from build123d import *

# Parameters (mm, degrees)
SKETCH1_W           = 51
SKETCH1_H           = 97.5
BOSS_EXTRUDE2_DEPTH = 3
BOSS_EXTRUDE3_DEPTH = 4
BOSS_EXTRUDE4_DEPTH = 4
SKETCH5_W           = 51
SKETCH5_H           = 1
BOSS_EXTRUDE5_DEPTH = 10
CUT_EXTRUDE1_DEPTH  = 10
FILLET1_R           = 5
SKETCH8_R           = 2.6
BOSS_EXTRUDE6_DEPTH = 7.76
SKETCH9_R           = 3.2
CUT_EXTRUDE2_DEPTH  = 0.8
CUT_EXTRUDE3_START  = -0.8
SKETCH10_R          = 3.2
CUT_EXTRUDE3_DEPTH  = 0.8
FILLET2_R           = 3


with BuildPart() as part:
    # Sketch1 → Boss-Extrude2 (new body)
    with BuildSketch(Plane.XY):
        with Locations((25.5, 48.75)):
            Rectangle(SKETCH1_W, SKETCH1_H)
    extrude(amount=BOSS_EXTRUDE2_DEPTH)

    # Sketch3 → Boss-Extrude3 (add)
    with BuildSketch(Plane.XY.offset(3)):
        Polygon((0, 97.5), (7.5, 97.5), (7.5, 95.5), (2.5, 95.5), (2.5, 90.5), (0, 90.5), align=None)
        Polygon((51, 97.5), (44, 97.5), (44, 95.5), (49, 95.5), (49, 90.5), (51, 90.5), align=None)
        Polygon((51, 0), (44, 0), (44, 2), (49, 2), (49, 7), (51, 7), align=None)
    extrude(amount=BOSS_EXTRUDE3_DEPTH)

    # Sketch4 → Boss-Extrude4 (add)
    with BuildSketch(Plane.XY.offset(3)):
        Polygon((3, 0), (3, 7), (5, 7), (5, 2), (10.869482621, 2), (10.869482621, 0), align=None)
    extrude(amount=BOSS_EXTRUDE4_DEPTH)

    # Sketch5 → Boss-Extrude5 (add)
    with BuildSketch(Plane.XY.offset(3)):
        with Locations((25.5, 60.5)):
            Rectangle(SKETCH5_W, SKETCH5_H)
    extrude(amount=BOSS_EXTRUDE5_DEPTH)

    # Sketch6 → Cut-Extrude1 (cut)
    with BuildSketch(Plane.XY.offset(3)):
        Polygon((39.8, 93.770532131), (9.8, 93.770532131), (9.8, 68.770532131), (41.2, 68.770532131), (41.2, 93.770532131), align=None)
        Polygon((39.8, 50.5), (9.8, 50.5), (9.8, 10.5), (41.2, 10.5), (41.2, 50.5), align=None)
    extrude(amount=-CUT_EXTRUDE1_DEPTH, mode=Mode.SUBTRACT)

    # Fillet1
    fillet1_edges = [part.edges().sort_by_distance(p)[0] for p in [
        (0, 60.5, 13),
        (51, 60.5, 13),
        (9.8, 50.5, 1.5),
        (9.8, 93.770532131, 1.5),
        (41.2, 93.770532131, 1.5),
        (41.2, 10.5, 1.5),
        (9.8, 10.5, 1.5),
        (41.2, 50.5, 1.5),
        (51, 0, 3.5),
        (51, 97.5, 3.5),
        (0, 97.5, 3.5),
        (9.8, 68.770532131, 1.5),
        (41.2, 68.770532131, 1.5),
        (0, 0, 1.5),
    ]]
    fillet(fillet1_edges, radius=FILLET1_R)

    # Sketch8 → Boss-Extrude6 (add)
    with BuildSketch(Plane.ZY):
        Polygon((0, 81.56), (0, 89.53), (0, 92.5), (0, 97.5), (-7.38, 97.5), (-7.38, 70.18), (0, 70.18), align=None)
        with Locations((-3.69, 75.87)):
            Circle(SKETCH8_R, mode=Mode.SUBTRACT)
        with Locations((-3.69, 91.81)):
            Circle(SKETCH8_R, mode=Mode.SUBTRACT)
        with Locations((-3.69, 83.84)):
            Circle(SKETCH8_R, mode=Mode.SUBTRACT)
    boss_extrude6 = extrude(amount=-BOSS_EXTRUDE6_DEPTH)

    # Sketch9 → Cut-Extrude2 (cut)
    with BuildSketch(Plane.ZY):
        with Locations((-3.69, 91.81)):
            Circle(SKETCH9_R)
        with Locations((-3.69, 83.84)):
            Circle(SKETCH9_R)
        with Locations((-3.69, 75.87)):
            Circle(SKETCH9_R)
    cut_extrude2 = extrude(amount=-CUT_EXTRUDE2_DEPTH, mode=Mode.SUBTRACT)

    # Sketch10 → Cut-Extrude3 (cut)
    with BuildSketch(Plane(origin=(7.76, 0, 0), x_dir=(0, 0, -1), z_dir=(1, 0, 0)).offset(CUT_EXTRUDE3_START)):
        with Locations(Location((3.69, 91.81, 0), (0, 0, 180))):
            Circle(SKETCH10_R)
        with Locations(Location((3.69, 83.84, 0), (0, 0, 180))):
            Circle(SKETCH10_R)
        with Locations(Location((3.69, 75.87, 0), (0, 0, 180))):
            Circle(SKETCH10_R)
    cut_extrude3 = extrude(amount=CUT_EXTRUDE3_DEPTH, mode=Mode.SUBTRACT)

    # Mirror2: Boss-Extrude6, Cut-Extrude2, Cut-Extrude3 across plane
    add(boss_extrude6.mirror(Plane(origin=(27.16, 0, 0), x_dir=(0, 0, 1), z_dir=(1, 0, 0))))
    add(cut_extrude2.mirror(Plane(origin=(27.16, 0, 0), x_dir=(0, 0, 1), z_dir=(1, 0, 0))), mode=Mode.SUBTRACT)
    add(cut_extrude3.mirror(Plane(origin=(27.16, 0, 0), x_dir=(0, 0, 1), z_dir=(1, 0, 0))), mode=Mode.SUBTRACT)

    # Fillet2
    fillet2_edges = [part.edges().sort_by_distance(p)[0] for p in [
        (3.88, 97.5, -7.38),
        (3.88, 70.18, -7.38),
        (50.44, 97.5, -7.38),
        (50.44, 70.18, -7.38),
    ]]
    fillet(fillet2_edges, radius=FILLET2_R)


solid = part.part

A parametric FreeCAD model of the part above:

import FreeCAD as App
import Part
import Sketcher

V = App.Vector
Q = App.Units.Quantity


def edges_at(feature, points):
    """Names of the edges that pass closest to the given points."""
    edges = feature.Shape.Edges
    near = lambda p: min(range(len(edges)), key=lambda i: edges[i].distToShape(Part.Vertex(*p))[0])
    return sorted({f"Edge{near(p) + 1}" for p in points})

doc = App.newDocument("Part")
body = doc.addObject("PartDesign::Body", "Body")

# Sketch on XY plane
sketch1 = doc.addObject("Sketcher::SketchObject", "Sketch")
body.addObject(sketch1)
sketch1.AttachmentSupport = (doc.XY_Plane, [""])
sketch1.MapMode = "FlatFace"
sketch1.addGeometry([
    Part.LineSegment(V(0, 97.5, 0), V(0, 0, 0)),
    Part.LineSegment(V(0, 0, 0), V(51, 0, 0)),
    Part.LineSegment(V(51, 0, 0), V(51, 97.5, 0)),
    Part.LineSegment(V(51, 97.5, 0), V(0, 97.5, 0)),
], False)
sketch1.addConstraint([
    Sketcher.Constraint("Coincident", 0, 2, 1, 1),
    Sketcher.Constraint("Coincident", 1, 2, 2, 1),
    Sketcher.Constraint("Coincident", 2, 2, 3, 1),
    Sketcher.Constraint("Coincident", 3, 2, 0, 1),
    Sketcher.Constraint("Vertical", 0),
    Sketcher.Constraint("Horizontal", 1),
    Sketcher.Constraint("Vertical", 2),
    Sketcher.Constraint("Horizontal", 3),
    Sketcher.Constraint("Coincident", 0, 2, -1, 1),
    Sketcher.Constraint("DistanceX", 1, 1, 1, 2, Q("51 mm")),
    Sketcher.Constraint("DistanceY", 0, 2, 0, 1, Q("97.5 mm")),
])
pad1 = doc.addObject("PartDesign::Pad", "Pad")
body.addObject(pad1)
pad1.Profile = sketch1
pad1.Length = 3

# Sketch on XY plane
sketch2 = doc.addObject("Sketcher::SketchObject", "Sketch001")
body.addObject(sketch2)
sketch2.AttachmentSupport = (doc.XY_Plane, [""])
sketch2.MapMode = "FlatFace"
sketch2.AttachmentOffset = App.Placement(V(0, 0, 3), App.Rotation())
sketch2.addGeometry([
    Part.LineSegment(V(7.5, 97.5, 0), V(0, 97.5, 0)),  # 0
    Part.LineSegment(V(0, 97.5, 0), V(0, 90.5, 0)),  # 1
    Part.LineSegment(V(0, 90.5, 0), V(2.5, 90.5, 0)),  # 2
    Part.LineSegment(V(2.5, 90.5, 0), V(2.5, 95.5, 0)),  # 3
    Part.LineSegment(V(2.5, 95.5, 0), V(7.5, 95.5, 0)),  # 4
    Part.LineSegment(V(7.5, 95.5, 0), V(7.5, 97.5, 0)),  # 5
    Part.LineSegment(V(51, 97.5, 0), V(44, 97.5, 0)),  # 6
    Part.LineSegment(V(44, 97.5, 0), V(44, 95.5, 0)),  # 7
    Part.LineSegment(V(44, 95.5, 0), V(49, 95.5, 0)),  # 8
    Part.LineSegment(V(49, 95.5, 0), V(49, 90.5, 0)),  # 9
    Part.LineSegment(V(49, 90.5, 0), V(51, 90.5, 0)),  # 10
    Part.LineSegment(V(51, 90.5, 0), V(51, 97.5, 0)),  # 11
    Part.LineSegment(V(44, 0, 0), V(51, 0, 0)),  # 12
    Part.LineSegment(V(51, 0, 0), V(51, 7, 0)),  # 13
    Part.LineSegment(V(51, 7, 0), V(49, 7, 0)),  # 14
    Part.LineSegment(V(49, 7, 0), V(49, 2, 0)),  # 15
    Part.LineSegment(V(49, 2, 0), V(44, 2, 0)),  # 16
    Part.LineSegment(V(44, 2, 0), V(44, 0, 0)),  # 17
], False)
sketch2.addConstraint([
    Sketcher.Constraint("Coincident", 0, 2, 1, 1),
    Sketcher.Constraint("Coincident", 1, 2, 2, 1),
    Sketcher.Constraint("Coincident", 2, 2, 3, 1),
    Sketcher.Constraint("Coincident", 3, 2, 4, 1),
    Sketcher.Constraint("Coincident", 4, 2, 5, 1),
    Sketcher.Constraint("Coincident", 5, 2, 0, 1),
    Sketcher.Constraint("Coincident", 6, 2, 7, 1),
    Sketcher.Constraint("Coincident", 7, 2, 8, 1),
    Sketcher.Constraint("Coincident", 8, 2, 9, 1),
    Sketcher.Constraint("Coincident", 9, 2, 10, 1),
    Sketcher.Constraint("Coincident", 10, 2, 11, 1),
    Sketcher.Constraint("Coincident", 11, 2, 6, 1),
    Sketcher.Constraint("Coincident", 12, 2, 13, 1),
    Sketcher.Constraint("Coincident", 13, 2, 14, 1),
    Sketcher.Constraint("Coincident", 14, 2, 15, 1),
    Sketcher.Constraint("Coincident", 15, 2, 16, 1),
    Sketcher.Constraint("Coincident", 16, 2, 17, 1),
    Sketcher.Constraint("Coincident", 17, 2, 12, 1),
    Sketcher.Constraint("Horizontal", 0),
    Sketcher.Constraint("Vertical", 1),
    Sketcher.Constraint("Horizontal", 2),
    Sketcher.Constraint("Vertical", 3),
    Sketcher.Constraint("Horizontal", 4),
    Sketcher.Constraint("Vertical", 5),
    Sketcher.Constraint("Horizontal", 6),
    Sketcher.Constraint("Vertical", 7),
    Sketcher.Constraint("Horizontal", 8),
    Sketcher.Constraint("Vertical", 9),
    Sketcher.Constraint("Horizontal", 10),
    Sketcher.Constraint("Vertical", 11),
    Sketcher.Constraint("Horizontal", 12),
    Sketcher.Constraint("Vertical", 13),
    Sketcher.Constraint("Horizontal", 14),
    Sketcher.Constraint("Vertical", 15),
    Sketcher.Constraint("Horizontal", 16),
    Sketcher.Constraint("Vertical", 17),
    Sketcher.Constraint("PointOnObject", 0, 2, -2),
    Sketcher.Constraint("PointOnObject", 12, 2, -1),
    Sketcher.Constraint("Horizontal", 5, 2, 6, 2),
    Sketcher.Constraint("Horizontal", 4, 2, 7, 2),
    Sketcher.Constraint("Horizontal", 2, 2, 9, 2),
    Sketcher.Constraint("Vertical", 11, 2, 12, 2),
    Sketcher.Constraint("Vertical", 9, 2, 14, 2),
    Sketcher.Constraint("Vertical", 7, 2, 16, 2),
    Sketcher.Constraint("Equal", 4, 8),
    Sketcher.Constraint("Equal", 12, 1),
    Sketcher.Constraint("Equal", 16, 3),
    Sketcher.Constraint("Equal", 11, 13),
    Sketcher.Constraint("Equal", 9, 15),
    Sketcher.Constraint("DistanceX", 4, 1, 4, 2, Q("5 mm")),
    Sketcher.Constraint("DistanceX", 6, 2, 6, 1, Q("7 mm")),
    Sketcher.Constraint("DistanceX", 0, 2, 0, 1, Q("7.5 mm")),
    Sketcher.Constraint("DistanceX", -1, 1, 6, 2, Q("44 mm")),
    Sketcher.Constraint("DistanceY", -1, 1, 0, 2, Q("97.5 mm")),
])
pad2 = doc.addObject("PartDesign::Pad", "Pad001")
body.addObject(pad2)
pad2.Profile = sketch2
pad2.Length = 4

# Sketch on XY plane
sketch3 = doc.addObject("Sketcher::SketchObject", "Sketch002")
body.addObject(sketch3)
sketch3.AttachmentSupport = (doc.XY_Plane, [""])
sketch3.MapMode = "FlatFace"
sketch3.AttachmentOffset = App.Placement(V(0, 0, 3), App.Rotation())
sketch3.addGeometry([
    Part.LineSegment(V(3, 7, 0), V(3, 0, 0)),  # 0
    Part.LineSegment(V(3, 0, 0), V(10.869483, 0, 0)),  # 1
    Part.LineSegment(V(10.869483, 0, 0), V(10.869483, 2, 0)),  # 2
    Part.LineSegment(V(10.869483, 2, 0), V(5, 2, 0)),  # 3
    Part.LineSegment(V(5, 2, 0), V(5, 7, 0)),  # 4
    Part.LineSegment(V(5, 7, 0), V(3, 7, 0)),  # 5
], False)
sketch3.addConstraint([
    Sketcher.Constraint("Coincident", 0, 2, 1, 1),
    Sketcher.Constraint("Coincident", 1, 2, 2, 1),
    Sketcher.Constraint("Coincident", 2, 2, 3, 1),
    Sketcher.Constraint("Coincident", 3, 2, 4, 1),
    Sketcher.Constraint("Coincident", 4, 2, 5, 1),
    Sketcher.Constraint("Coincident", 5, 2, 0, 1),
    Sketcher.Constraint("Vertical", 0),
    Sketcher.Constraint("Horizontal", 1),
    Sketcher.Constraint("Vertical", 2),
    Sketcher.Constraint("Horizontal", 3),
    Sketcher.Constraint("Vertical", 4),
    Sketcher.Constraint("Horizontal", 5),
    Sketcher.Constraint("PointOnObject", 0, 2, -1),
    Sketcher.Constraint("Equal", 5, 2),
    Sketcher.Constraint("DistanceX", 5, 2, 5, 1, Q("2 mm")),
    Sketcher.Constraint("DistanceY", 0, 2, 0, 1, Q("7 mm")),
    Sketcher.Constraint("DistanceX", -1, 1, 0, 2, Q("3 mm")),
    Sketcher.Constraint("DistanceX", 1, 1, 1, 2, Q("7.869483 mm")),
])
pad3 = doc.addObject("PartDesign::Pad", "Pad002")
body.addObject(pad3)
pad3.Profile = sketch3
pad3.Length = 4

# Sketch on XY plane
sketch4 = doc.addObject("Sketcher::SketchObject", "Sketch003")
body.addObject(sketch4)
sketch4.AttachmentSupport = (doc.XY_Plane, [""])
sketch4.MapMode = "FlatFace"
sketch4.AttachmentOffset = App.Placement(V(0, 0, 3), App.Rotation())
sketch4.addGeometry([
    Part.LineSegment(V(0, 61, 0), V(0, 60, 0)),
    Part.LineSegment(V(0, 60, 0), V(51, 60, 0)),
    Part.LineSegment(V(51, 60, 0), V(51, 61, 0)),
    Part.LineSegment(V(51, 61, 0), V(0, 61, 0)),
], False)
sketch4.addConstraint([
    Sketcher.Constraint("Coincident", 0, 2, 1, 1),
    Sketcher.Constraint("Coincident", 1, 2, 2, 1),
    Sketcher.Constraint("Coincident", 2, 2, 3, 1),
    Sketcher.Constraint("Coincident", 3, 2, 0, 1),
    Sketcher.Constraint("Vertical", 0),
    Sketcher.Constraint("Horizontal", 1),
    Sketcher.Constraint("Vertical", 2),
    Sketcher.Constraint("Horizontal", 3),
    Sketcher.Constraint("PointOnObject", 0, 2, -2),
    Sketcher.Constraint("DistanceX", 1, 1, 1, 2, Q("51 mm")),
    Sketcher.Constraint("DistanceY", 0, 2, 0, 1, Q("1 mm")),
    Sketcher.Constraint("DistanceY", -1, 1, 0, 2, Q("60 mm")),
])
pad4 = doc.addObject("PartDesign::Pad", "Pad003")
body.addObject(pad4)
pad4.Profile = sketch4
pad4.Length = 10

# Sketch on XY plane
sketch5 = doc.addObject("Sketcher::SketchObject", "Sketch004")
body.addObject(sketch5)
sketch5.AttachmentSupport = (doc.XY_Plane, [""])
sketch5.MapMode = "FlatFace"
sketch5.AttachmentOffset = App.Placement(V(0, 0, 3), App.Rotation())
sketch5.addGeometry([
    Part.LineSegment(V(9.8, 93.770532, 0), V(9.8, 68.770532, 0)),  # 0
    Part.LineSegment(V(9.8, 68.770532, 0), V(41.2, 68.770532, 0)),  # 1
    Part.LineSegment(V(41.2, 68.770532, 0), V(41.2, 93.770532, 0)),  # 2
    Part.LineSegment(V(41.2, 93.770532, 0), V(9.8, 93.770532, 0)),  # 3
    Part.LineSegment(V(9.8, 50.5, 0), V(9.8, 10.5, 0)),  # 4
    Part.LineSegment(V(9.8, 10.5, 0), V(41.2, 10.5, 0)),  # 5
    Part.LineSegment(V(41.2, 10.5, 0), V(41.2, 50.5, 0)),  # 6
    Part.LineSegment(V(41.2, 50.5, 0), V(9.8, 50.5, 0)),  # 7
], False)
sketch5.addConstraint([
    Sketcher.Constraint("Coincident", 0, 2, 1, 1),
    Sketcher.Constraint("Coincident", 1, 2, 2, 1),
    Sketcher.Constraint("Coincident", 2, 2, 3, 1),
    Sketcher.Constraint("Coincident", 3, 2, 0, 1),
    Sketcher.Constraint("Coincident", 4, 2, 5, 1),
    Sketcher.Constraint("Coincident", 5, 2, 6, 1),
    Sketcher.Constraint("Coincident", 6, 2, 7, 1),
    Sketcher.Constraint("Coincident", 7, 2, 4, 1),
    Sketcher.Constraint("Vertical", 0),
    Sketcher.Constraint("Horizontal", 1),
    Sketcher.Constraint("Vertical", 2),
    Sketcher.Constraint("Horizontal", 3),
    Sketcher.Constraint("Vertical", 4),
    Sketcher.Constraint("Horizontal", 5),
    Sketcher.Constraint("Vertical", 6),
    Sketcher.Constraint("Horizontal", 7),
    Sketcher.Constraint("Vertical", 3, 2, 4, 2),
    Sketcher.Constraint("Vertical", 2, 2, 5, 2),
    Sketcher.Constraint("DistanceY", 0, 2, 0, 1, Q("25 mm")),
    Sketcher.Constraint("DistanceY", 4, 2, 4, 1, Q("40 mm")),
    Sketcher.Constraint("DistanceX", 1, 1, 1, 2, Q("31.4 mm")),
    Sketcher.Constraint("DistanceX", -1, 1, 0, 2, Q("9.8 mm")),
    Sketcher.Constraint("DistanceY", -1, 1, 4, 2, Q("10.5 mm")),
    Sketcher.Constraint("DistanceY", -1, 1, 0, 2, Q("68.770532 mm")),
])
pocket1 = doc.addObject("PartDesign::Pocket", "Pocket")
body.addObject(pocket1)
pocket1.Profile = sketch5
pocket1.Length = 10
doc.recompute()

fillet = doc.addObject("PartDesign::Fillet", "Fillet")
body.addObject(fillet)
fillet.Base = (pocket1, edges_at(pocket1, [
    (0, 60.5, 13),
    (51, 60.5, 13),
    (9.8, 50.5, 1.5),
    (9.8, 93.771, 1.5),
    (41.2, 93.771, 1.5),
    (41.2, 10.5, 1.5),
    (9.8, 10.5, 1.5),
    (41.2, 50.5, 1.5),
    (51, 0, 3.5),
    (51, 97.5, 3.5),
    (0, 97.5, 3.5),
    (9.8, 68.771, 1.5),
    (41.2, 68.771, 1.5),
    (0, 0, 1.5),
]))
fillet.Radius = 5

# Sketch on YZ plane
sketch6 = doc.addObject("Sketcher::SketchObject", "Sketch005")
body.addObject(sketch6)
sketch6.AttachmentSupport = (doc.YZ_Plane, [""])
sketch6.MapMode = "FlatFace"
sketch6.addGeometry([
    Part.LineSegment(V(97.5, 0, 0), V(97.5, -7.38, 0)),  # 0
    Part.LineSegment(V(97.5, -7.38, 0), V(70.18, -7.38, 0)),  # 1
    Part.LineSegment(V(70.18, -7.38, 0), V(70.18, 0, 0)),  # 2
    Part.LineSegment(V(70.18, 0, 0), V(97.5, 0, 0)),  # 3
    Part.Circle(V(75.87, -3.69, 0), V(0, 0, 1), 2.6),  # 4
    Part.Circle(V(83.84, -3.69, 0), V(0, 0, 1), 2.6),  # 5
    Part.Circle(V(91.81, -3.69, 0), V(0, 0, 1), 2.6),  # 6
], False)
sketch6.addConstraint([
    Sketcher.Constraint("Coincident", 0, 2, 1, 1),
    Sketcher.Constraint("Coincident", 1, 2, 2, 1),
    Sketcher.Constraint("Coincident", 2, 2, 3, 1),
    Sketcher.Constraint("Coincident", 3, 2, 0, 1),
    Sketcher.Constraint("Vertical", 0),
    Sketcher.Constraint("Horizontal", 1),
    Sketcher.Constraint("Vertical", 2),
    Sketcher.Constraint("Horizontal", 3),
    Sketcher.Constraint("Equal", 4, 5),
    Sketcher.Constraint("Equal", 5, 6),
    Sketcher.Constraint("PointOnObject", 2, 2, -1),
    Sketcher.Constraint("Horizontal", 4, 3, 5, 3),
    Sketcher.Constraint("Horizontal", 5, 3, 6, 3),
    Sketcher.Constraint("Diameter", 4, Q("5.2 mm")),
    Sketcher.Constraint("DistanceX", 1, 2, 1, 1, Q("27.32 mm")),
    Sketcher.Constraint("DistanceY", 0, 2, 0, 1, Q("7.38 mm")),
    Sketcher.Constraint("DistanceX", -1, 1, 0, 2, Q("97.5 mm")),
    Sketcher.Constraint("DistanceX", -1, 1, 4, 3, Q("75.87 mm")),
    Sketcher.Constraint("DistanceY", 4, 3, -1, 1, Q("3.69 mm")),
    Sketcher.Constraint("DistanceX", -1, 1, 5, 3, Q("83.84 mm")),
    Sketcher.Constraint("DistanceX", -1, 1, 6, 3, Q("91.81 mm")),
])
pad5 = doc.addObject("PartDesign::Pad", "Pad004")
body.addObject(pad5)
pad5.Profile = sketch6
pad5.Length = 7.76

# Sketch on YZ plane
sketch7 = doc.addObject("Sketcher::SketchObject", "Sketch006")
body.addObject(sketch7)
sketch7.AttachmentSupport = (doc.YZ_Plane, [""])
sketch7.MapMode = "FlatFace"
sketch7.addGeometry([
    Part.Circle(V(91.81, -3.69, 0), V(0, 0, 1), 3.2),
    Part.Circle(V(83.84, -3.69, 0), V(0, 0, 1), 3.2),
    Part.Circle(V(75.87, -3.69, 0), V(0, 0, 1), 3.2),
], False)
sketch7.addConstraint([
    Sketcher.Constraint("Equal", 0, 1),
    Sketcher.Constraint("Equal", 1, 2),
    Sketcher.Constraint("Horizontal", 0, 3, 1, 3),
    Sketcher.Constraint("Horizontal", 1, 3, 2, 3),
    Sketcher.Constraint("Diameter", 0, Q("6.4 mm")),
    Sketcher.Constraint("DistanceX", -1, 1, 0, 3, Q("91.81 mm")),
    Sketcher.Constraint("DistanceY", 0, 3, -1, 1, Q("3.69 mm")),
    Sketcher.Constraint("DistanceX", -1, 1, 1, 3, Q("83.84 mm")),
    Sketcher.Constraint("DistanceX", -1, 1, 2, 3, Q("75.87 mm")),
])
pocket2 = doc.addObject("PartDesign::Pocket", "Pocket001")
body.addObject(pocket2)
pocket2.Profile = sketch7
pocket2.Length = 0.8
pocket2.Reversed = True

# Sketch on YZ plane
sketch8 = doc.addObject("Sketcher::SketchObject", "Sketch007")
body.addObject(sketch8)
sketch8.AttachmentSupport = (doc.YZ_Plane, [""])
sketch8.MapMode = "FlatFace"
sketch8.AttachmentOffset = App.Placement(V(0, 0, 6.96), App.Rotation())
sketch8.addGeometry([
    Part.Circle(V(91.81, -3.69, 0), V(0, 0, 1), 3.2),
    Part.Circle(V(83.84, -3.69, 0), V(0, 0, 1), 3.2),
    Part.Circle(V(75.87, -3.69, 0), V(0, 0, 1), 3.2),
], False)
sketch8.addConstraint([
    Sketcher.Constraint("Equal", 0, 1),
    Sketcher.Constraint("Equal", 1, 2),
    Sketcher.Constraint("Horizontal", 0, 3, 1, 3),
    Sketcher.Constraint("Horizontal", 1, 3, 2, 3),
    Sketcher.Constraint("Diameter", 0, Q("6.4 mm")),
    Sketcher.Constraint("DistanceX", -1, 1, 0, 3, Q("91.81 mm")),
    Sketcher.Constraint("DistanceY", 0, 3, -1, 1, Q("3.69 mm")),
    Sketcher.Constraint("DistanceX", -1, 1, 1, 3, Q("83.84 mm")),
    Sketcher.Constraint("DistanceX", -1, 1, 2, 3, Q("75.87 mm")),
])
pocket3 = doc.addObject("PartDesign::Pocket", "Pocket002")
body.addObject(pocket3)
pocket3.Profile = sketch8
pocket3.Length = 0.8
pocket3.Reversed = True
doc.recompute()

datumplane = doc.addObject("PartDesign::Plane", "DatumPlane")
body.addObject(datumplane)
datumplane.AttachmentSupport = (doc.YZ_Plane, [""])
datumplane.MapMode = "FlatFace"
datumplane.AttachmentOffset = App.Placement(V(0, 0, 27.16), App.Rotation())
mirrored = doc.addObject("PartDesign::Mirrored", "Mirrored")
body.addObject(mirrored)
mirrored.Originals = [pad5, pocket2, pocket3]
mirrored.MirrorPlane = (datumplane, [""])
body.Tip = mirrored
doc.recompute()

fillet2 = doc.addObject("PartDesign::Fillet", "Fillet001")
body.addObject(fillet2)
fillet2.Base = (mirrored, edges_at(mirrored, [
    (3.88, 97.5, -7.38),
    (3.88, 70.18, -7.38),
    (50.44, 97.5, -7.38),
    (50.44, 70.18, -7.38),
]))
fillet2.Radius = 3

doc.recompute()
